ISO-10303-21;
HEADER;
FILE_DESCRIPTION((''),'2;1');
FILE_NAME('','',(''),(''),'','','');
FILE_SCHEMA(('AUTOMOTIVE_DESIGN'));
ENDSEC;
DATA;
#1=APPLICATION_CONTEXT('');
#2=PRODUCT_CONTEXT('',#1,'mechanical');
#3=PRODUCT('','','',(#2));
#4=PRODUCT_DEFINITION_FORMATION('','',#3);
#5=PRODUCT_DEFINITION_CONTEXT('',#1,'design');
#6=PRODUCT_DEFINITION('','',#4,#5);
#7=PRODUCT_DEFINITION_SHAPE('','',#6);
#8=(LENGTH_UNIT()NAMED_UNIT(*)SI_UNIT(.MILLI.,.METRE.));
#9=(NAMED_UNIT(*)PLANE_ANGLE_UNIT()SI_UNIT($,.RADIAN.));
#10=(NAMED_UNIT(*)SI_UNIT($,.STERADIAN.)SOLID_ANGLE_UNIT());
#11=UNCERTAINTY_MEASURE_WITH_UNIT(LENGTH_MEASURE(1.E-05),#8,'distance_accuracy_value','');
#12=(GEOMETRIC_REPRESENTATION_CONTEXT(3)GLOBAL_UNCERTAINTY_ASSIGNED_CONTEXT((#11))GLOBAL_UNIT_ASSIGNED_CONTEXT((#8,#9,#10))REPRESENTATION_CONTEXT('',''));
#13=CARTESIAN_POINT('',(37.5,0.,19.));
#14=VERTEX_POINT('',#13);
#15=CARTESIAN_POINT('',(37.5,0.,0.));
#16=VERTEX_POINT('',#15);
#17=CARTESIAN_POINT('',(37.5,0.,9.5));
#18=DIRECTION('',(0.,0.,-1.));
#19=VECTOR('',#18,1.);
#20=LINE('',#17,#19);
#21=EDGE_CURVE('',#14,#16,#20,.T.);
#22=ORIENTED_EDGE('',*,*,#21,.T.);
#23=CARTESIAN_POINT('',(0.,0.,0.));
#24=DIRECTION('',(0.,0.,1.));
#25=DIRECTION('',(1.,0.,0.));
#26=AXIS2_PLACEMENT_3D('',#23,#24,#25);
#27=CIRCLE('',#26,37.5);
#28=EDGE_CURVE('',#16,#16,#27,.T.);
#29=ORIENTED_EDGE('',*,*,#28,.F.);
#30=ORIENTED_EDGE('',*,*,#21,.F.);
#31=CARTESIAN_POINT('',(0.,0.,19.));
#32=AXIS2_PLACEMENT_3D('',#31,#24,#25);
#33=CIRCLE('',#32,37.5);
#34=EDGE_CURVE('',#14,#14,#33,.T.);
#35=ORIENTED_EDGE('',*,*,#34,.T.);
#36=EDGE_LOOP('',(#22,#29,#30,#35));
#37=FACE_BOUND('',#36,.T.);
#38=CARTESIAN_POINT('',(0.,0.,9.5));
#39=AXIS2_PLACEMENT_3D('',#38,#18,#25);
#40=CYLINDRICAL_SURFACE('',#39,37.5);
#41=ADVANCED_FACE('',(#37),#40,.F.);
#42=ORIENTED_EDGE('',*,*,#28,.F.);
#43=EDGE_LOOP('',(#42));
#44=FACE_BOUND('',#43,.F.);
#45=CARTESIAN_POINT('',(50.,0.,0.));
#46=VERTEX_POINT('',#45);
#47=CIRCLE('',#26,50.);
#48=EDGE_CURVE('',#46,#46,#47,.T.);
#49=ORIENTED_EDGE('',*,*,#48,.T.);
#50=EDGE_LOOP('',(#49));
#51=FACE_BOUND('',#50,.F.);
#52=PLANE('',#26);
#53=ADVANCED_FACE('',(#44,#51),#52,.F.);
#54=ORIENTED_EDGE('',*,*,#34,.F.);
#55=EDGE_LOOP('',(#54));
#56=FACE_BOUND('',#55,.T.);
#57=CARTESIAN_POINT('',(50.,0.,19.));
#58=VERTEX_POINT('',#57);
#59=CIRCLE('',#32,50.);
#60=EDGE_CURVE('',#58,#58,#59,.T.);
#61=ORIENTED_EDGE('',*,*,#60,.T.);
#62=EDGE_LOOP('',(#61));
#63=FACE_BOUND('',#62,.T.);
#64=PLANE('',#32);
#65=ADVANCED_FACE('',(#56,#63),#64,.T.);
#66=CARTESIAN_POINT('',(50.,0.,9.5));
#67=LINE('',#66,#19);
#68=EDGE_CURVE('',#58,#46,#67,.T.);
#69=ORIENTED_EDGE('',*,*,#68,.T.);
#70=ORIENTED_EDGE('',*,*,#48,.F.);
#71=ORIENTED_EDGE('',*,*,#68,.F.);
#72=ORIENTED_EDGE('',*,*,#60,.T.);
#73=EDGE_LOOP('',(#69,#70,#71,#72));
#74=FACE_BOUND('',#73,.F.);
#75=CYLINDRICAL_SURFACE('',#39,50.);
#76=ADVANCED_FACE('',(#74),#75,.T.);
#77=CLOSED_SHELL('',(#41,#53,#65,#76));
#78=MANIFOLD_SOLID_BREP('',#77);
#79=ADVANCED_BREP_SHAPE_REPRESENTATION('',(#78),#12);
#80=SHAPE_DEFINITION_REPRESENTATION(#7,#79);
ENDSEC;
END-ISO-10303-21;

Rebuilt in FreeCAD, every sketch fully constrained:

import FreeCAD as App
import Part
import Sketcher
Q = App.Units.Quantity


def add_polygon(sketch, points):
    """Adds a closed chain of lines whose ends are joined by coincident constraints."""
    first, n = sketch.GeometryCount, len(points)
    for a, b in zip(points, points[1:] + points[:1]):
        sketch.addGeometry(Part.LineSegment(App.Vector(*a, 0), App.Vector(*b, 0)), False)
    for i in range(n):
        sketch.addConstraint(Sketcher.Constraint("Coincident", first + i, 2, first + (i + 1) % n, 1))

doc = App.newDocument("Part")
body = doc.addObject("PartDesign::Body", "Body")

# Sketch on XZ plane
sketch1 = body.newObject("Sketcher::SketchObject", "Sketch")
sketch1.AttachmentSupport = (doc.getObject("XZ_Plane"), [""])
sketch1.MapMode = "FlatFace"
add_polygon(sketch1, [(50, 0), (50, 19), (38, 19), (38, 0)])  # lines 0-3
sketch1.addConstraint([
    Sketcher.Constraint("Vertical", 0),
    Sketcher.Constraint("Horizontal", 1),
    Sketcher.Constraint("Vertical", 2),
    Sketcher.Constraint("Horizontal", 3),
    Sketcher.Constraint("PointOnObject", 2, 2, -1),
    Sketcher.Constraint("DistanceY", 0, 1, 0, 2, Q("19 mm")),
    Sketcher.Constraint("DistanceX", 1, 2, 1, 1, Q("12.5 mm")),
    Sketcher.Constraint("DistanceX", -1, 1, 0, 2, Q("50 mm")),
])
revolution = body.newObject("PartDesign::Revolution", "Revolution")
revolution.Profile = sketch1
revolution.ReferenceAxis = (sketch1, ["V_Axis"])
revolution.Angle = 360

doc.recompute()
